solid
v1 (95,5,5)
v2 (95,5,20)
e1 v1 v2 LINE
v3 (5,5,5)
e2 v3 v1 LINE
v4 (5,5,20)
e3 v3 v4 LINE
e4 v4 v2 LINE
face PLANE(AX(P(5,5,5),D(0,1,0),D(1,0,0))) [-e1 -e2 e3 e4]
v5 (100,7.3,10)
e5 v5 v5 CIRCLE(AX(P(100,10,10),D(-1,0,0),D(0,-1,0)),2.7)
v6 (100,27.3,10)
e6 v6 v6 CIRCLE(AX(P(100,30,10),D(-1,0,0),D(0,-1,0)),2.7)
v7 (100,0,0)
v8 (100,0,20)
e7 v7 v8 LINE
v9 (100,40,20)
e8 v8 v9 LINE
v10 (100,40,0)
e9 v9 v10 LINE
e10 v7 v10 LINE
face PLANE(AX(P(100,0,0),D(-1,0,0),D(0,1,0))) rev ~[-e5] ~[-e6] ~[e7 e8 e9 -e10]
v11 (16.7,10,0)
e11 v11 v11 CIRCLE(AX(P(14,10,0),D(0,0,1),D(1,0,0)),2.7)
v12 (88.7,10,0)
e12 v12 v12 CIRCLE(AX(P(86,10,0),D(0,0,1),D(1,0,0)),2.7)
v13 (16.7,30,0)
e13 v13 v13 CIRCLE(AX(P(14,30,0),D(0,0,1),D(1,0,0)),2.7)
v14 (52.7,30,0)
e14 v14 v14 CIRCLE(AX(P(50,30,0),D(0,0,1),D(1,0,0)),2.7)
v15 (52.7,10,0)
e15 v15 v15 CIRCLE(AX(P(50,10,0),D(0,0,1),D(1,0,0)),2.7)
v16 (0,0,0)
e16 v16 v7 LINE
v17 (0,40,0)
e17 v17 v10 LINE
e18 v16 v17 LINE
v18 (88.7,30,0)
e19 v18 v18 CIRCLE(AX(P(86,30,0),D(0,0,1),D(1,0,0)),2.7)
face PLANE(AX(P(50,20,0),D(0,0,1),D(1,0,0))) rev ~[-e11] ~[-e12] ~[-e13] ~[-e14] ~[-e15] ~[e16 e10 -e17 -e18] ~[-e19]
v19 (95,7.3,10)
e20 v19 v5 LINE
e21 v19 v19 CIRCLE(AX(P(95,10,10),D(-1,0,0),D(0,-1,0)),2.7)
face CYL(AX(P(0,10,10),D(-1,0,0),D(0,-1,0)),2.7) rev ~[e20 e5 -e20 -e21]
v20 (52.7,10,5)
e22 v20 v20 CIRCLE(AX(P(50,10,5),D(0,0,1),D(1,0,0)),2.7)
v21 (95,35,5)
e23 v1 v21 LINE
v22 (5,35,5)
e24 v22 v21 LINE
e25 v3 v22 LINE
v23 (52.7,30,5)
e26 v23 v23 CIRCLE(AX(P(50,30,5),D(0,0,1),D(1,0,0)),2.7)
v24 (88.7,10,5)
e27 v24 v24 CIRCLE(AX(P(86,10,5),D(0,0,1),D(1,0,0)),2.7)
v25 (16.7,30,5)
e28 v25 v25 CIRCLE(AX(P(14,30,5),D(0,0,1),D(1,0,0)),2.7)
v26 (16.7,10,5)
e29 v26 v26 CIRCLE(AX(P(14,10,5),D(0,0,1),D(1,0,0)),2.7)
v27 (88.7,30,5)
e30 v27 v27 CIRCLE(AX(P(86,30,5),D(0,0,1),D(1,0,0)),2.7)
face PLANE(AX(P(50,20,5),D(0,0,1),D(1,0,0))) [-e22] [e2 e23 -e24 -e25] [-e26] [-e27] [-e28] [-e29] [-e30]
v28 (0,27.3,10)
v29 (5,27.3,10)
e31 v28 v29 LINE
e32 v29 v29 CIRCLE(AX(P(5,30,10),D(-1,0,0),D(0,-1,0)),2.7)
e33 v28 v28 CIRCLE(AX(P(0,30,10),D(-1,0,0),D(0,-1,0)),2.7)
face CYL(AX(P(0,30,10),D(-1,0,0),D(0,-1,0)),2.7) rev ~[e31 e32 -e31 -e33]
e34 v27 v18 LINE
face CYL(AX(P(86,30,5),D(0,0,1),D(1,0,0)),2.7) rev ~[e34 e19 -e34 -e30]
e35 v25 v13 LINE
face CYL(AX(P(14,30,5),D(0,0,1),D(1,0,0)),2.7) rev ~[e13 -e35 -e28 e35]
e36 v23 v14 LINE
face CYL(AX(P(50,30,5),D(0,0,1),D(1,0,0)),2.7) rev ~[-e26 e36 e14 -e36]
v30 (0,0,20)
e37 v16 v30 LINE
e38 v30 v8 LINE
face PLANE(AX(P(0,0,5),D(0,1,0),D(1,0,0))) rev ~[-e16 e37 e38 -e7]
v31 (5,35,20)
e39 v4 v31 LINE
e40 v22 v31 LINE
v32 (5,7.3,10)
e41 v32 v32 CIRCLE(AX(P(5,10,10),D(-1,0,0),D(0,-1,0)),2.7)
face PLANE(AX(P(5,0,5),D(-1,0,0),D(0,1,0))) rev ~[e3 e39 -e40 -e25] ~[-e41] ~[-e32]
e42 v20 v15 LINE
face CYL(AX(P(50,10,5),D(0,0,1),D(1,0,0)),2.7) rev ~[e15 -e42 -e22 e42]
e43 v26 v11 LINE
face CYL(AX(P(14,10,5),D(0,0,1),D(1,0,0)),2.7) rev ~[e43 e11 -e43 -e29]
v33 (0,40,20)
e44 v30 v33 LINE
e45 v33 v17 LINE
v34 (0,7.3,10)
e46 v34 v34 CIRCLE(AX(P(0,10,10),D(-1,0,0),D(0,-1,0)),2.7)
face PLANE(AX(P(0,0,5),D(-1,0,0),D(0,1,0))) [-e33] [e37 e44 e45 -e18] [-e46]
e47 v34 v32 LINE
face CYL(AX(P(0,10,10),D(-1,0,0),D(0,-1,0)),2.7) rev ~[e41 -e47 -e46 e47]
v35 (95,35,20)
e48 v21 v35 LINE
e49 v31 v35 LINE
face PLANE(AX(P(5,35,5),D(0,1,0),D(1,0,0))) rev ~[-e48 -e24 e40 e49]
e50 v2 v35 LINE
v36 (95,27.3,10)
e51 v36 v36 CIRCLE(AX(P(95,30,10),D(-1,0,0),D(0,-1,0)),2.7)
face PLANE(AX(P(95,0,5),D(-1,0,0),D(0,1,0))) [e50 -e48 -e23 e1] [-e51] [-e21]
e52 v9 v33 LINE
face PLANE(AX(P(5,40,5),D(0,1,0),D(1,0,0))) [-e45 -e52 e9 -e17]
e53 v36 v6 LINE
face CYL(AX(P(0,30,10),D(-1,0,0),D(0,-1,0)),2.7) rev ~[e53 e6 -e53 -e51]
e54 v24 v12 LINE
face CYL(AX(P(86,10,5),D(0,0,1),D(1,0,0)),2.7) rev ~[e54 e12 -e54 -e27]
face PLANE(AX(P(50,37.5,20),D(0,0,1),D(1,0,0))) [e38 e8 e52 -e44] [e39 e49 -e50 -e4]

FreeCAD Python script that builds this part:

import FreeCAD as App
import Part
import Sketcher

V = App.Vector
Q = App.Units.Quantity


def add_polygon(sketch, points):
    """Adds a closed chain of lines whose ends are joined by coincident constraints."""
    first, n = sketch.GeometryCount, len(points)
    for a, b in zip(points, points[1:] + points[:1]):
        sketch.addGeometry(Part.LineSegment(App.Vector(*a, 0), App.Vector(*b, 0)), False)
    for i in range(n):
        sketch.addConstraint(Sketcher.Constraint("Coincident", first + i, 2, first + (i + 1) % n, 1))

doc = App.newDocument("Part")
body = doc.addObject("PartDesign::Body", "Body")

# Sketch on XY plane
sketch1 = doc.addObject("Sketcher::SketchObject", "Sketch")
body.addObject(sketch1)
sketch1.AttachmentSupport = (doc.XY_Plane, [""])
sketch1.MapMode = "FlatFace"
add_polygon(sketch1, [(0, 40), (0, 0), (100, 0), (100, 40)])  # lines 0-3
sketch1.addConstraint([
    Sketcher.Constraint("Vertical", 0),
    Sketcher.Constraint("Horizontal", 1),
    Sketcher.Constraint("Vertical", 2),
    Sketcher.Constraint("Horizontal", 3),
    Sketcher.Constraint("Coincident", 0, 2, -1, 1),
    Sketcher.Constraint("DistanceX", 1, 1, 1, 2, Q("100 mm")),
    Sketcher.Constraint("DistanceY", 0, 2, 0, 1, Q("40 mm")),
])
pad1 = doc.addObject("PartDesign::Pad", "Pad")
body.addObject(pad1)
pad1.Profile = sketch1
pad1.Length = 5

# Sketch on XY plane
sketch2 = doc.addObject("Sketcher::SketchObject", "Sketch001")
body.addObject(sketch2)
sketch2.AttachmentSupport = (doc.XY_Plane, [""])
sketch2.MapMode = "FlatFace"
sketch2.AttachmentOffset = App.Placement(V(0, 0, 5), App.Rotation())
add_polygon(sketch2, [(0, 40), (0, 0), (5, 0), (5, 40)])  # lines 0-3
add_polygon(sketch2, [(95, 40), (95, 0), (100, 0), (100, 40)])  # lines 4-7
sketch2.addConstraint([
    Sketcher.Constraint("Vertical", 0),
    Sketcher.Constraint("Horizontal", 1),
    Sketcher.Constraint("Vertical", 2),
    Sketcher.Constraint("Horizontal", 3),
    Sketcher.Constraint("Vertical", 4),
    Sketcher.Constraint("Horizontal", 5),
    Sketcher.Constraint("Vertical", 6),
    Sketcher.Constraint("Horizontal", 7),
    Sketcher.Constraint("Coincident", 0, 2, -1, 1),
    Sketcher.Constraint("PointOnObject", 4, 2, -1),
    Sketcher.Constraint("Horizontal", 3, 2, 6, 2),
    Sketcher.Constraint("Equal", 3, 5),
    Sketcher.Constraint("DistanceX", 1, 1, 1, 2, Q("5 mm")),
    Sketcher.Constraint("DistanceY", 0, 2, 0, 1, Q("40 mm")),
    Sketcher.Constraint("DistanceX", -1, 1, 4, 2, Q("95 mm")),
])
pad2 = doc.addObject("PartDesign::Pad", "Pad001")
body.addObject(pad2)
pad2.Profile = sketch2
pad2.Length = 15

# Sketch on YZ plane
sketch3 = doc.addObject("Sketcher::SketchObject", "Sketch002")
body.addObject(sketch3)
sketch3.AttachmentSupport = (doc.YZ_Plane, [""])
sketch3.MapMode = "FlatFace"
sketch3.addGeometry([
    Part.Circle(V(30, 10, 0), V(0, 0, 1), 2.7),
    Part.Circle(V(10, 10, 0), V(0, 0, 1), 2.7),
], False)
sketch3.addConstraint([
    Sketcher.Constraint("Equal", 0, 1),
    Sketcher.Constraint("Horizontal", 0, 3, 1, 3),
    Sketcher.Constraint("Diameter", 0, Q("5.4 mm")),
    Sketcher.Constraint("DistanceX", -1, 1, 0, 3, Q("30 mm")),
    Sketcher.Constraint("DistanceY", -1, 1, 0, 3, Q("10 mm")),
    Sketcher.Constraint("DistanceX", -1, 1, 1, 3, Q("10 mm")),
])
pocket1 = doc.addObject("PartDesign::Pocket", "Pocket")
body.addObject(pocket1)
pocket1.Profile = sketch3
pocket1.Type = "ThroughAll"
pocket1.Reversed = True

# Sketch on XY plane
sketch4 = doc.addObject("Sketcher::SketchObject", "Sketch003")
body.addObject(sketch4)
sketch4.AttachmentSupport = (doc.XY_Plane, [""])
sketch4.MapMode = "FlatFace"
sketch4.AttachmentOffset = App.Placement(V(0, 0, 5), App.Rotation())
sketch4.addGeometry([
    Part.Circle(V(14, 30, 0), V(0, 0, 1), 2.7),  # 0
    Part.Circle(V(14, 10, 0), V(0, 0, 1), 2.7),  # 1
    Part.Circle(V(86, 30, 0), V(0, 0, 1), 2.7),  # 2
    Part.Circle(V(86, 10, 0), V(0, 0, 1), 2.7),  # 3
    Part.Circle(V(50, 30, 0), V(0, 0, 1), 2.7),  # 4
    Part.Circle(V(50, 10, 0), V(0, 0, 1), 2.7),  # 5
], False)
sketch4.addConstraint([
    Sketcher.Constraint("Equal", 0, 1),
    Sketcher.Constraint("Equal", 1, 2),
    Sketcher.Constraint("Equal", 2, 3),
    Sketcher.Constraint("Equal", 3, 4),
    Sketcher.Constraint("Equal", 4, 5),
    Sketcher.Constraint("Horizontal", 0, 3, 2, 3),
    Sketcher.Constraint("Horizontal", 1, 3, 3, 3),
    Sketcher.Constraint("Horizontal", 2, 3, 4, 3),
    Sketcher.Constraint("Horizontal", 3, 3, 5, 3),
    Sketcher.Constraint("Vertical", 0, 3, 1, 3),
    Sketcher.Constraint("Vertical", 2, 3, 3, 3),
    Sketcher.Constraint("Vertical", 4, 3, 5, 3),
    Sketcher.Constraint("Diameter", 0, Q("5.4 mm")),
    Sketcher.Constraint("DistanceX", -1, 1, 0, 3, Q("14 mm")),
    Sketcher.Constraint("DistanceY", -1, 1, 0, 3, Q("30 mm")),
    Sketcher.Constraint("DistanceY", -1, 1, 1, 3, Q("10 mm")),
    Sketcher.Constraint("DistanceX", -1, 1, 2, 3, Q("86 mm")),
    Sketcher.Constraint("DistanceX", -1, 1, 4, 3, Q("50 mm")),
])
pocket2 = doc.addObject("PartDesign::Pocket", "Pocket001")
body.addObject(pocket2)
pocket2.Profile = sketch4
pocket2.Length = 5

# Sketch on XY plane
sketch5 = doc.addObject("Sketcher::SketchObject", "Sketch004")
body.addObject(sketch5)
sketch5.AttachmentSupport = (doc.XY_Plane, [""])
sketch5.MapMode = "FlatFace"
sketch5.AttachmentOffset = App.Placement(V(0, 0, 5), App.Rotation())
add_polygon(sketch5, [(5, 40), (5, 35), (95, 35), (95, 40)])  # lines 0-3
add_polygon(sketch5, [(5, 5), (5, 0), (95, 0), (95, 5)])  # lines 4-7
sketch5.addConstraint([
    Sketcher.Constraint("Vertical", 0),
    Sketcher.Constraint("Horizontal", 1),
    Sketcher.Constraint("Vertical", 2),
    Sketcher.Constraint("Horizontal", 3),
    Sketcher.Constraint("Vertical", 4),
    Sketcher.Constraint("Horizontal", 5),
    Sketcher.Constraint("Vertical", 6),
    Sketcher.Constraint("Horizontal", 7),
    Sketcher.Constraint("PointOnObject", 4, 2, -1),
    Sketcher.Constraint("Vertical", 3, 2, 4, 2),
    Sketcher.Constraint("Vertical", 2, 2, 5, 2),
    Sketcher.Constraint("Equal", 2, 4),
    Sketcher.Constraint("DistanceX", 1, 1, 1, 2, Q("90 mm")),
    Sketcher.Constraint("DistanceY", 0, 2, 0, 1, Q("5 mm")),
    Sketcher.Constraint("DistanceX", -1, 1, 0, 2, Q("5 mm")),
    Sketcher.Constraint("DistanceY", -1, 1, 0, 2, Q("35 mm")),
])
pad3 = doc.addObject("PartDesign::Pad", "Pad002")
body.addObject(pad3)
pad3.Profile = sketch5
pad3.Length = 15

doc.recompute()
